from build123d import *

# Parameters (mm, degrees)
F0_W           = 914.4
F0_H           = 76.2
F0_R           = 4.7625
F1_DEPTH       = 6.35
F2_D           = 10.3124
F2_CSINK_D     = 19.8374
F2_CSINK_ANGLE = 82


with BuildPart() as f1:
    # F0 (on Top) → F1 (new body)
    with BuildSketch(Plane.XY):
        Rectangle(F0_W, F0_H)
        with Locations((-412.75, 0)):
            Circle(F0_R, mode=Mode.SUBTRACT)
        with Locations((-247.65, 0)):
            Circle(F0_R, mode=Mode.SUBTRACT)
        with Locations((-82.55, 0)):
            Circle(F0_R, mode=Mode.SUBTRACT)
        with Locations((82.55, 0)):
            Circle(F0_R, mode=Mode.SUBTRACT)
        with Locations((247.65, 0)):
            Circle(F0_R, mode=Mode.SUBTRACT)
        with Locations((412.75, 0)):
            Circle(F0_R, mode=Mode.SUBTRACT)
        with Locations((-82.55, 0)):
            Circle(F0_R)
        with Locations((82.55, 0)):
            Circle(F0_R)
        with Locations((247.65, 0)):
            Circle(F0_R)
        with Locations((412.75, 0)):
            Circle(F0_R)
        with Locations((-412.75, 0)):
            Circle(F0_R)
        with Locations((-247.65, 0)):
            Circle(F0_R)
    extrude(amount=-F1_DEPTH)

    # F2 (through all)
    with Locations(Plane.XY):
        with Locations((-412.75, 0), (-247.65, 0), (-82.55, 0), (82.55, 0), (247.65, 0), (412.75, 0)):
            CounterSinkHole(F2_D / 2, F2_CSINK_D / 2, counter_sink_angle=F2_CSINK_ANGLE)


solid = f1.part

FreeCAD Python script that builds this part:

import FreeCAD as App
import Part
import Sketcher
Q = App.Units.Quantity

doc = App.newDocument("Part")
body = doc.addObject("PartDesign::Body", "Body")

# Sketch on XY plane
sketch1 = body.newObject("Sketcher::SketchObject", "Sketch")
sketch1.AttachmentSupport = (doc.getObject("XY_Plane"), [""])
sketch1.MapMode = "FlatFace"
sketch1.addGeometry(Part.LineSegment(App.Vector(-457.2, 38.1, 0), App.Vector(-457.2, -38.1, 0)), False)
sketch1.addGeometry(Part.LineSegment(App.Vector(-457.2, -38.1, 0), App.Vector(457.2, -38.1, 0)), False)
sketch1.addGeometry(Part.LineSegment(App.Vector(457.2, -38.1, 0), App.Vector(457.2, 38.1, 0)), False)
sketch1.addGeometry(Part.LineSegment(App.Vector(457.2, 38.1, 0), App.Vector(-457.2, 38.1, 0)), False)
sketch1.addConstraint(Sketcher.Constraint("Coincident", 0, 2, 1, 1))
sketch1.addConstraint(Sketcher.Constraint("Coincident", 1, 2, 2, 1))
sketch1.addConstraint(Sketcher.Constraint("Coincident", 2, 2, 3, 1))
sketch1.addConstraint(Sketcher.Constraint("Coincident", 3, 2, 0, 1))
sketch1.addConstraint(Sketcher.Constraint("Vertical", 0))
sketch1.addConstraint(Sketcher.Constraint("Horizontal", 1))
sketch1.addConstraint(Sketcher.Constraint("Vertical", 2))
sketch1.addConstraint(Sketcher.Constraint("Horizontal", 3))
sketch1.addConstraint(Sketcher.Constraint("Symmetric", 0, 2, 2, 2, -1, 1))
sketch1.addConstraint(Sketcher.Constraint("DistanceX", 1, 1, 1, 2, Q("36 in")))
sketch1.addConstraint(Sketcher.Constraint("DistanceY", 0, 2, 0, 1, Q("3 in")))
pad1 = body.newObject("PartDesign::Pad", "Pad")
pad1.Profile = sketch1
pad1.Length = Q("0.25 in")
pad1.Reversed = True

# Sketch on XY plane
sketch2 = body.newObject("Sketcher::SketchObject", "Sketch001")
sketch2.AttachmentSupport = (doc.getObject("XY_Plane"), [""])
sketch2.MapMode = "FlatFace"
sketch2.addGeometry(Part.Circle(App.Vector(-412.75, 0, 0), App.Vector(0, 0, 1), 5.1562), False)
sketch2.addGeometry(Part.Circle(App.Vector(-247.65, 0, 0), App.Vector(0, 0, 1), 5.1562), False)
sketch2.addGeometry(Part.Circle(App.Vector(-82.55, 0, 0), App.Vector(0, 0, 1), 5.1562), False)
sketch2.addGeometry(Part.Circle(App.Vector(82.55, 0, 0), App.Vector(0, 0, 1), 5.1562), False)
sketch2.addGeometry(Part.Circle(App.Vector(247.65, 0, 0), App.Vector(0, 0, 1), 5.1562), False)
sketch2.addGeometry(Part.Circle(App.Vector(412.75, 0, 0), App.Vector(0, 0, 1), 5.1562), False)
sketch2.addConstraint(Sketcher.Constraint("Equal", 0, 1))
sketch2.addConstraint(Sketcher.Constraint("Equal", 1, 2))
sketch2.addConstraint(Sketcher.Constraint("Equal", 2, 3))
sketch2.addConstraint(Sketcher.Constraint("Equal", 3, 4))
sketch2.addConstraint(Sketcher.Constraint("Equal", 4, 5))
sketch2.addConstraint(Sketcher.Constraint("Symmetric", 2, 3, 3, 3, -1, 1))
sketch2.addConstraint(Sketcher.Constraint("Symmetric", 1, 3, 4, 3, -1, 1))
sketch2.addConstraint(Sketcher.Constraint("Symmetric", 0, 3, 5, 3, -1, 1))
sketch2.addConstraint(Sketcher.Constraint("PointOnObject", 0, 3, -1))
sketch2.addConstraint(Sketcher.Constraint("PointOnObject", 1, 3, -1))
sketch2.addConstraint(Sketcher.Constraint("PointOnObject", 2, 3, -1))
sketch2.addConstraint(Sketcher.Constraint("Diameter", 0, Q("0.406 in")))
sketch2.addConstraint(Sketcher.Constraint("DistanceX", 0, 3, 2, 3, Q("13 in")))
sketch2.addConstraint(Sketcher.Constraint("DistanceX", 1, 3, 3, 3, Q("13 in")))
sketch2.addConstraint(Sketcher.Constraint("DistanceX", 0, 3, 1, 3, Q("6.5 in")))
doc.recompute()
hole = body.newObject("PartDesign::Hole", "Hole")
hole.Profile = sketch2
hole.ThreadType = "None"
hole.Diameter = Q("0.406 in")
hole.DepthType = "ThroughAll"
hole.HoleCutType = "Countersink"
hole.HoleCutDiameter = Q("0.781 in")
hole.HoleCutCountersinkAngle = 82

doc.recompute()
